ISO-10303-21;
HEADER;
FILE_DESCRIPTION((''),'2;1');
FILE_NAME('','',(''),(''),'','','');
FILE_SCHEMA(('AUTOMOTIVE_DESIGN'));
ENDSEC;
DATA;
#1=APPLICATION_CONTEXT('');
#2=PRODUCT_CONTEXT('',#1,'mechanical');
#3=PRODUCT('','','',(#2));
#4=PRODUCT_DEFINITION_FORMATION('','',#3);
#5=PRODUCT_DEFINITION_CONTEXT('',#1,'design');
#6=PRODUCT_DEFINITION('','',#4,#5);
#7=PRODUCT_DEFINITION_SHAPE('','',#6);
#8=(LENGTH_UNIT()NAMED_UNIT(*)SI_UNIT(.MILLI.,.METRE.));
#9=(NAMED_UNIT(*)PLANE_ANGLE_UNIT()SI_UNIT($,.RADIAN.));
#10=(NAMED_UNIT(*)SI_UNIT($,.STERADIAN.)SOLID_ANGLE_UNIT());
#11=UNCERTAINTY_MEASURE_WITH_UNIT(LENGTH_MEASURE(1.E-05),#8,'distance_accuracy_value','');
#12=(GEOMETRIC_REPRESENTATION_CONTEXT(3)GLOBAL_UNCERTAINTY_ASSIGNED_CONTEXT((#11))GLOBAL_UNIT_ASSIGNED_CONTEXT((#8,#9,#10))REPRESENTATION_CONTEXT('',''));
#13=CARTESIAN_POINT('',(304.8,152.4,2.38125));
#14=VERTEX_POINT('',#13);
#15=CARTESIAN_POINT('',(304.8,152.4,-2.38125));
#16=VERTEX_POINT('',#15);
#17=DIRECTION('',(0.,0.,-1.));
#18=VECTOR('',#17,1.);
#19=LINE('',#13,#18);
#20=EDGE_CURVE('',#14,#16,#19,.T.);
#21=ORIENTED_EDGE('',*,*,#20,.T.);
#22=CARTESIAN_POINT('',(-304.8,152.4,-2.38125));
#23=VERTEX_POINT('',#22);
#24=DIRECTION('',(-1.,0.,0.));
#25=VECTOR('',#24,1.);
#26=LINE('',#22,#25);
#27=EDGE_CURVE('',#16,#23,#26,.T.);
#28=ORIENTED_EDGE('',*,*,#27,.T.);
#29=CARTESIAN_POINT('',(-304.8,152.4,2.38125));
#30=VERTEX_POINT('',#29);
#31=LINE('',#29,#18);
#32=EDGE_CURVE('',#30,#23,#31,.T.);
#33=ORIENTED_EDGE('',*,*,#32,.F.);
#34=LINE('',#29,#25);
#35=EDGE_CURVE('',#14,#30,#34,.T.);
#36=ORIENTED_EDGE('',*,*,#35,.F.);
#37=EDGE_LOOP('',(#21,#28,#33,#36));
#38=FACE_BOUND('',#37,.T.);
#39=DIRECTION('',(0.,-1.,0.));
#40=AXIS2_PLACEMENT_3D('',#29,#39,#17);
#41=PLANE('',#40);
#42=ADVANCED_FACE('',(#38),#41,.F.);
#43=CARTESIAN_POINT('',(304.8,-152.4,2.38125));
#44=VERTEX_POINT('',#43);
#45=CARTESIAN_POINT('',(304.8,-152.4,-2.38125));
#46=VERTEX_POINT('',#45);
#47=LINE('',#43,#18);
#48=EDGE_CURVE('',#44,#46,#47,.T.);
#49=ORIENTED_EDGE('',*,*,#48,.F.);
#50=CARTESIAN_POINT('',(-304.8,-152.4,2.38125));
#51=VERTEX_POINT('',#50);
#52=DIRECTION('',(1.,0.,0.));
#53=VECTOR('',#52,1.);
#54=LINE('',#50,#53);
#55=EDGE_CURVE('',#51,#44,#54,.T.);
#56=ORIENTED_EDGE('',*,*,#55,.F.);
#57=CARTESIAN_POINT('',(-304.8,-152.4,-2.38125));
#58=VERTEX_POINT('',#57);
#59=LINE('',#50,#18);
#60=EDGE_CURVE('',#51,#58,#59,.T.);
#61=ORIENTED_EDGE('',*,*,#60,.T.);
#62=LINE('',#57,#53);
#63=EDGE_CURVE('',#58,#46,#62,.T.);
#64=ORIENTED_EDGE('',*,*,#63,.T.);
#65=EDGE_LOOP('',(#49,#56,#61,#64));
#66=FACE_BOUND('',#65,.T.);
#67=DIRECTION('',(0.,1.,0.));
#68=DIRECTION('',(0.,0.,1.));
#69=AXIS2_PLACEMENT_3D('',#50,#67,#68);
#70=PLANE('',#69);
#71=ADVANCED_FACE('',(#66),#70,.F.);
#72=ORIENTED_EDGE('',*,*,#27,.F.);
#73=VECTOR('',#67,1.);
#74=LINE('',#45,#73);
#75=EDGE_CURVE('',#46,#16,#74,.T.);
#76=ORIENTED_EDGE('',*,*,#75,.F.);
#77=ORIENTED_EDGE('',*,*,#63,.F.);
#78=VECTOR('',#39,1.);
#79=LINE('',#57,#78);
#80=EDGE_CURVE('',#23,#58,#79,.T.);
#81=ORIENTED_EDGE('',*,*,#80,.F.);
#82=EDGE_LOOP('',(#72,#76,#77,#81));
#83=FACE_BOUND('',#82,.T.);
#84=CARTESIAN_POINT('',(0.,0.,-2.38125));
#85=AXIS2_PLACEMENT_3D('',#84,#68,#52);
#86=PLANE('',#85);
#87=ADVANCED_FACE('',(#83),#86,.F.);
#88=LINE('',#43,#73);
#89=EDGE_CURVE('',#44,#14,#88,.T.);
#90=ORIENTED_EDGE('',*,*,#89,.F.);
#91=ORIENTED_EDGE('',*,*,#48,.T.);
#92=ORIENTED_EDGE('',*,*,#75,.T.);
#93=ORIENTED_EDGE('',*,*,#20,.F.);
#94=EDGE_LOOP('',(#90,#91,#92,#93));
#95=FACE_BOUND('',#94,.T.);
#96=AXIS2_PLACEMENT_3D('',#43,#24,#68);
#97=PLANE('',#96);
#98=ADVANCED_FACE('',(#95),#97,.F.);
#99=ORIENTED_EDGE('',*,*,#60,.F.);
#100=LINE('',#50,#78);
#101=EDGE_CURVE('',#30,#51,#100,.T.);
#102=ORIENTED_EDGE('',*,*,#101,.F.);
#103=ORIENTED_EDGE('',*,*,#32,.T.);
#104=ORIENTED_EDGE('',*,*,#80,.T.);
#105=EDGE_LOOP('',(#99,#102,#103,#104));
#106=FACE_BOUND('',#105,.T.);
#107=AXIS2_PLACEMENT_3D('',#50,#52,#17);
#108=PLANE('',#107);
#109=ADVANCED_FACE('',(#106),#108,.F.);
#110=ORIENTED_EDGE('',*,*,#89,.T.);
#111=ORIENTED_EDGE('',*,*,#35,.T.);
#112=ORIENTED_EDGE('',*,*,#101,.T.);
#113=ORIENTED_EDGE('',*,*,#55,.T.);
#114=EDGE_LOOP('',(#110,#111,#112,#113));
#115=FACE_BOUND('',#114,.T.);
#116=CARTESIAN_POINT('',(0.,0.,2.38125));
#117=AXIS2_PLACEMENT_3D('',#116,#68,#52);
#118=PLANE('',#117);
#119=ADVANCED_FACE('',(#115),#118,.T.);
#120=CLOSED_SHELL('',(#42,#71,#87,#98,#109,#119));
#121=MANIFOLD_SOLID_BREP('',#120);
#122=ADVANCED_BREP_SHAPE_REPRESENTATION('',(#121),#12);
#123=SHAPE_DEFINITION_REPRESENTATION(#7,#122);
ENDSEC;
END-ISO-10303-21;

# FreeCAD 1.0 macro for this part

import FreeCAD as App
import Part
import Sketcher

V = App.Vector
Q = App.Units.Quantity

doc = App.newDocument("Part")
body = doc.addObject("PartDesign::Body", "Body")

# Sketch on XY plane
sketch1 = body.newObject("Sketcher::SketchObject", "Sketch")
sketch1.AttachmentSupport = (doc.getObject("XY_Plane"), [""])
sketch1.MapMode = "FlatFace"
sketch1.addGeometry(Part.LineSegment(V(-305, 152, 0), V(-305, -152, 0)), False)
sketch1.addGeometry(Part.LineSegment(V(-305, -152, 0), V(305, -152, 0)), False)
sketch1.addGeometry(Part.LineSegment(V(305, -152, 0), V(305, 152, 0)), False)
sketch1.addGeometry(Part.LineSegment(V(305, 152, 0), V(-305, 152, 0)), False)
sketch1.addConstraint(Sketcher.Constraint("Coincident", 0, 2, 1, 1))
sketch1.addConstraint(Sketcher.Constraint("Coincident", 1, 2, 2, 1))
sketch1.addConstraint(Sketcher.Constraint("Coincident", 2, 2, 3, 1))
sketch1.addConstraint(Sketcher.Constraint("Coincident", 3, 2, 0, 1))
sketch1.addConstraint(Sketcher.Constraint("Vertical", 0))
sketch1.addConstraint(Sketcher.Constraint("Horizontal", 1))
sketch1.addConstraint(Sketcher.Constraint("Vertical", 2))
sketch1.addConstraint(Sketcher.Constraint("Horizontal", 3))
sketch1.addConstraint(Sketcher.Constraint("Symmetric", 0, 2, 2, 2, -1, 1))
sketch1.addConstraint(Sketcher.Constraint("DistanceX", 1, 1, 1, 2, Q("24 in")))
sketch1.addConstraint(Sketcher.Constraint("DistanceY", 0, 2, 0, 1, Q("12 in")))
pad1 = body.newObject("PartDesign::Pad", "Pad")
pad1.Profile = sketch1
pad1.Length = Q("0.1875 in")
pad1.Midplane = True

doc.recompute()
